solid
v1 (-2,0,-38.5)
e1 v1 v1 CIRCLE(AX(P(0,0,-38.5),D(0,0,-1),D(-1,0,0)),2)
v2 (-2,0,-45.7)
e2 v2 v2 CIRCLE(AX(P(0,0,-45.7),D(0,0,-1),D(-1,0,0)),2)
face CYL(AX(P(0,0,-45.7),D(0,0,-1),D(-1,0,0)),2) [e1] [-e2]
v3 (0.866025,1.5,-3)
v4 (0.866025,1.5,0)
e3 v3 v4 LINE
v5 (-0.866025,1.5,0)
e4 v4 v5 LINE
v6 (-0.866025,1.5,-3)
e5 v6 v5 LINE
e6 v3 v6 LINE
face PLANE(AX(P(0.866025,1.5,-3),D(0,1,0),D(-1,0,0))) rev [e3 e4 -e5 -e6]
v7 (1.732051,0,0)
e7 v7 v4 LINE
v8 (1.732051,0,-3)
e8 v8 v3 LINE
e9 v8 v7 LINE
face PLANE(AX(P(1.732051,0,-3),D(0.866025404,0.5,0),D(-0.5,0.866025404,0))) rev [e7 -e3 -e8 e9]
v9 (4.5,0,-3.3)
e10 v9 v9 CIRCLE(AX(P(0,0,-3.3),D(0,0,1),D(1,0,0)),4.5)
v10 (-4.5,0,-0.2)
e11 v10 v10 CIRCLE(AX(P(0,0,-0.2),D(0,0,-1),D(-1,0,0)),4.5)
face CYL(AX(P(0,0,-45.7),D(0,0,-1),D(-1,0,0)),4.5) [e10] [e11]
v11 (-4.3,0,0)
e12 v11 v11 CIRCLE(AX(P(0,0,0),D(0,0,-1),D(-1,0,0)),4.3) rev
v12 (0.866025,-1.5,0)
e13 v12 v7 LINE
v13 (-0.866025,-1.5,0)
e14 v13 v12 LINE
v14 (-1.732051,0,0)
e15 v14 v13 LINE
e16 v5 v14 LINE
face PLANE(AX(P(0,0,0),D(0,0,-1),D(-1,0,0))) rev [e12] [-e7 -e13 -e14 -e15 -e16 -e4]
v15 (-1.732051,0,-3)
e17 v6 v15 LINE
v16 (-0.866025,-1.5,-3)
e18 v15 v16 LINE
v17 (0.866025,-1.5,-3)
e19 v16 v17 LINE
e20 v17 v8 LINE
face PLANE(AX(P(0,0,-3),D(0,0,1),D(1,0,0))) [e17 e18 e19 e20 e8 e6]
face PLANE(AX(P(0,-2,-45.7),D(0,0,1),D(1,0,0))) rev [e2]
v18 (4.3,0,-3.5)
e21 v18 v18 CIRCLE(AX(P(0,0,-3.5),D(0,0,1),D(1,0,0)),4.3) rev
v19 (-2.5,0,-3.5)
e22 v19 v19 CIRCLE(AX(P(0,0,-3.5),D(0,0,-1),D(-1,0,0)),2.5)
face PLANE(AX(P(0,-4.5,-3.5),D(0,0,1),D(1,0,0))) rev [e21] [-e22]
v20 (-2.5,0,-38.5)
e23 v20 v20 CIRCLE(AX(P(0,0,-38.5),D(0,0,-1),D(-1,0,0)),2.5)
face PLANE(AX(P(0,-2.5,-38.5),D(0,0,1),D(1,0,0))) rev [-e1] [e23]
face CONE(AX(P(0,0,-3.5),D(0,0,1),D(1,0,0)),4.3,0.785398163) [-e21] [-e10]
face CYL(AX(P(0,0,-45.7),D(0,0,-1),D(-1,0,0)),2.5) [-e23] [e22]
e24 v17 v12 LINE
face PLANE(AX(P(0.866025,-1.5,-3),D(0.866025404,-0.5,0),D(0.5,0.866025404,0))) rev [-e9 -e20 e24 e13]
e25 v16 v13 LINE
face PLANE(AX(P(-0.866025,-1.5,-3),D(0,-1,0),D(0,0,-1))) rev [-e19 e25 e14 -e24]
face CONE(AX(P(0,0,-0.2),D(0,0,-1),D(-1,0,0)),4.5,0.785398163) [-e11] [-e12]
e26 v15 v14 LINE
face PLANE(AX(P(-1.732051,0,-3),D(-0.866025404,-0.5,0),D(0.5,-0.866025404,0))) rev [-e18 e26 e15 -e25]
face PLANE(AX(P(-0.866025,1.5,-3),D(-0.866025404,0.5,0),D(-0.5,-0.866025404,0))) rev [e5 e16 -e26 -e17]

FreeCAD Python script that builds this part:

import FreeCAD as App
import Part
import Sketcher

V = App.Vector
Q = App.Units.Quantity


def edges_at(feature, points):
    """Names of the edges that pass closest to the given points."""
    edges = feature.Shape.Edges
    near = lambda p: min(range(len(edges)), key=lambda i: edges[i].distToShape(Part.Vertex(*p))[0])
    return sorted({f"Edge{near(p) + 1}" for p in points})


def add_polygon(sketch, points):
    """Adds a closed chain of lines whose ends are joined by coincident constraints."""
    first, n = sketch.GeometryCount, len(points)
    for a, b in zip(points, points[1:] + points[:1]):
        sketch.addGeometry(Part.LineSegment(App.Vector(*a, 0), App.Vector(*b, 0)), False)
    for i in range(n):
        sketch.addConstraint(Sketcher.Constraint("Coincident", first + i, 2, first + (i + 1) % n, 1))

doc = App.newDocument("Part")
body = doc.addObject("PartDesign::Body", "Body")

sketch1 = body.newObject("Sketcher::SketchObject", "Sketch")
sketch1.AttachmentSupport = (doc.getObject("YZ_Plane"), [""])
sketch1.MapMode = "FlatFace"
add_polygon(sketch1, [(0, 0), (-4.5, 0), (-4.5, -3.5), (-2.5, -3.5), (-2.5, -38.5), (-2, -38.5), (-2, -45.7), (0, -45.7)])
sketch1.addConstraint([
    Sketcher.Constraint("Horizontal", 0),
    Sketcher.Constraint("Vertical", 1),
    Sketcher.Constraint("Horizontal", 2),
    Sketcher.Constraint("Vertical", 3),
    Sketcher.Constraint("Horizontal", 4),
    Sketcher.Constraint("Vertical", 5),
    Sketcher.Constraint("Horizontal", 6),
    Sketcher.Constraint("Vertical", 7),
    Sketcher.Constraint("Coincident", 7, 2, -1, 1),
    Sketcher.Constraint("Equal", 2, 6),
    Sketcher.Constraint("DistanceX", 2, 1, 2, 2, 2.0),
    Sketcher.Constraint("DistanceY", 3, 2, 3, 1, 35.0),
    Sketcher.Constraint("DistanceX", 0, 2, 0, 1, 4.5),
    Sketcher.Constraint("DistanceY", 1, 2, 1, 1, 3.5),
    Sketcher.Constraint("DistanceY", 5, 2, 5, 1, 7.2),
])
revolution = body.newObject("PartDesign::Revolution", "Revolution")
revolution.Profile = sketch1
revolution.ReferenceAxis = (sketch1, ["V_Axis"])
revolution.Angle = 360

sketch2 = body.newObject("Sketcher::SketchObject", "Sketch001")
sketch2.AttachmentSupport = (doc.getObject("XY_Plane"), [""])
sketch2.MapMode = "FlatFace"
add_polygon(sketch2, [(1.7, 0), (0.9, 1.5), (-0.9, 1.5), (-1.7, 0), (-0.9, -1.5), (0.9, -1.5)])
sketch2.addConstraint([
    Sketcher.Constraint("Horizontal", 1),
    Sketcher.Constraint("Horizontal", 4),
    Sketcher.Constraint("Symmetric", 0, 2, 3, 2, -1, 1),
    Sketcher.Constraint("Symmetric", 2, 2, 5, 2, -1, 1),
    Sketcher.Constraint("PointOnObject", 2, 2, -1),
    Sketcher.Constraint("Parallel", 2, 5),
    Sketcher.Constraint("Vertical", 1, 2, 3, 2),
    Sketcher.Constraint("Angle", 0, Q("120 deg")),
    Sketcher.Constraint("DistanceY", 3, 2, 1, 2, 3.0),
    Sketcher.Constraint("DistanceX", 1, 2, 1, 1, 1.732051),
])
pocket1 = body.newObject("PartDesign::Pocket", "Pocket")
pocket1.Profile = sketch2
pocket1.Length = 3
doc.recompute()

chamfer = body.newObject("PartDesign::Chamfer", "Chamfer")
chamfer.Base = (pocket1, edges_at(pocket1, [(4.5, 0, -3.5), (4.5, 0, 0)]))
chamfer.Size = 0.2

doc.recompute()
